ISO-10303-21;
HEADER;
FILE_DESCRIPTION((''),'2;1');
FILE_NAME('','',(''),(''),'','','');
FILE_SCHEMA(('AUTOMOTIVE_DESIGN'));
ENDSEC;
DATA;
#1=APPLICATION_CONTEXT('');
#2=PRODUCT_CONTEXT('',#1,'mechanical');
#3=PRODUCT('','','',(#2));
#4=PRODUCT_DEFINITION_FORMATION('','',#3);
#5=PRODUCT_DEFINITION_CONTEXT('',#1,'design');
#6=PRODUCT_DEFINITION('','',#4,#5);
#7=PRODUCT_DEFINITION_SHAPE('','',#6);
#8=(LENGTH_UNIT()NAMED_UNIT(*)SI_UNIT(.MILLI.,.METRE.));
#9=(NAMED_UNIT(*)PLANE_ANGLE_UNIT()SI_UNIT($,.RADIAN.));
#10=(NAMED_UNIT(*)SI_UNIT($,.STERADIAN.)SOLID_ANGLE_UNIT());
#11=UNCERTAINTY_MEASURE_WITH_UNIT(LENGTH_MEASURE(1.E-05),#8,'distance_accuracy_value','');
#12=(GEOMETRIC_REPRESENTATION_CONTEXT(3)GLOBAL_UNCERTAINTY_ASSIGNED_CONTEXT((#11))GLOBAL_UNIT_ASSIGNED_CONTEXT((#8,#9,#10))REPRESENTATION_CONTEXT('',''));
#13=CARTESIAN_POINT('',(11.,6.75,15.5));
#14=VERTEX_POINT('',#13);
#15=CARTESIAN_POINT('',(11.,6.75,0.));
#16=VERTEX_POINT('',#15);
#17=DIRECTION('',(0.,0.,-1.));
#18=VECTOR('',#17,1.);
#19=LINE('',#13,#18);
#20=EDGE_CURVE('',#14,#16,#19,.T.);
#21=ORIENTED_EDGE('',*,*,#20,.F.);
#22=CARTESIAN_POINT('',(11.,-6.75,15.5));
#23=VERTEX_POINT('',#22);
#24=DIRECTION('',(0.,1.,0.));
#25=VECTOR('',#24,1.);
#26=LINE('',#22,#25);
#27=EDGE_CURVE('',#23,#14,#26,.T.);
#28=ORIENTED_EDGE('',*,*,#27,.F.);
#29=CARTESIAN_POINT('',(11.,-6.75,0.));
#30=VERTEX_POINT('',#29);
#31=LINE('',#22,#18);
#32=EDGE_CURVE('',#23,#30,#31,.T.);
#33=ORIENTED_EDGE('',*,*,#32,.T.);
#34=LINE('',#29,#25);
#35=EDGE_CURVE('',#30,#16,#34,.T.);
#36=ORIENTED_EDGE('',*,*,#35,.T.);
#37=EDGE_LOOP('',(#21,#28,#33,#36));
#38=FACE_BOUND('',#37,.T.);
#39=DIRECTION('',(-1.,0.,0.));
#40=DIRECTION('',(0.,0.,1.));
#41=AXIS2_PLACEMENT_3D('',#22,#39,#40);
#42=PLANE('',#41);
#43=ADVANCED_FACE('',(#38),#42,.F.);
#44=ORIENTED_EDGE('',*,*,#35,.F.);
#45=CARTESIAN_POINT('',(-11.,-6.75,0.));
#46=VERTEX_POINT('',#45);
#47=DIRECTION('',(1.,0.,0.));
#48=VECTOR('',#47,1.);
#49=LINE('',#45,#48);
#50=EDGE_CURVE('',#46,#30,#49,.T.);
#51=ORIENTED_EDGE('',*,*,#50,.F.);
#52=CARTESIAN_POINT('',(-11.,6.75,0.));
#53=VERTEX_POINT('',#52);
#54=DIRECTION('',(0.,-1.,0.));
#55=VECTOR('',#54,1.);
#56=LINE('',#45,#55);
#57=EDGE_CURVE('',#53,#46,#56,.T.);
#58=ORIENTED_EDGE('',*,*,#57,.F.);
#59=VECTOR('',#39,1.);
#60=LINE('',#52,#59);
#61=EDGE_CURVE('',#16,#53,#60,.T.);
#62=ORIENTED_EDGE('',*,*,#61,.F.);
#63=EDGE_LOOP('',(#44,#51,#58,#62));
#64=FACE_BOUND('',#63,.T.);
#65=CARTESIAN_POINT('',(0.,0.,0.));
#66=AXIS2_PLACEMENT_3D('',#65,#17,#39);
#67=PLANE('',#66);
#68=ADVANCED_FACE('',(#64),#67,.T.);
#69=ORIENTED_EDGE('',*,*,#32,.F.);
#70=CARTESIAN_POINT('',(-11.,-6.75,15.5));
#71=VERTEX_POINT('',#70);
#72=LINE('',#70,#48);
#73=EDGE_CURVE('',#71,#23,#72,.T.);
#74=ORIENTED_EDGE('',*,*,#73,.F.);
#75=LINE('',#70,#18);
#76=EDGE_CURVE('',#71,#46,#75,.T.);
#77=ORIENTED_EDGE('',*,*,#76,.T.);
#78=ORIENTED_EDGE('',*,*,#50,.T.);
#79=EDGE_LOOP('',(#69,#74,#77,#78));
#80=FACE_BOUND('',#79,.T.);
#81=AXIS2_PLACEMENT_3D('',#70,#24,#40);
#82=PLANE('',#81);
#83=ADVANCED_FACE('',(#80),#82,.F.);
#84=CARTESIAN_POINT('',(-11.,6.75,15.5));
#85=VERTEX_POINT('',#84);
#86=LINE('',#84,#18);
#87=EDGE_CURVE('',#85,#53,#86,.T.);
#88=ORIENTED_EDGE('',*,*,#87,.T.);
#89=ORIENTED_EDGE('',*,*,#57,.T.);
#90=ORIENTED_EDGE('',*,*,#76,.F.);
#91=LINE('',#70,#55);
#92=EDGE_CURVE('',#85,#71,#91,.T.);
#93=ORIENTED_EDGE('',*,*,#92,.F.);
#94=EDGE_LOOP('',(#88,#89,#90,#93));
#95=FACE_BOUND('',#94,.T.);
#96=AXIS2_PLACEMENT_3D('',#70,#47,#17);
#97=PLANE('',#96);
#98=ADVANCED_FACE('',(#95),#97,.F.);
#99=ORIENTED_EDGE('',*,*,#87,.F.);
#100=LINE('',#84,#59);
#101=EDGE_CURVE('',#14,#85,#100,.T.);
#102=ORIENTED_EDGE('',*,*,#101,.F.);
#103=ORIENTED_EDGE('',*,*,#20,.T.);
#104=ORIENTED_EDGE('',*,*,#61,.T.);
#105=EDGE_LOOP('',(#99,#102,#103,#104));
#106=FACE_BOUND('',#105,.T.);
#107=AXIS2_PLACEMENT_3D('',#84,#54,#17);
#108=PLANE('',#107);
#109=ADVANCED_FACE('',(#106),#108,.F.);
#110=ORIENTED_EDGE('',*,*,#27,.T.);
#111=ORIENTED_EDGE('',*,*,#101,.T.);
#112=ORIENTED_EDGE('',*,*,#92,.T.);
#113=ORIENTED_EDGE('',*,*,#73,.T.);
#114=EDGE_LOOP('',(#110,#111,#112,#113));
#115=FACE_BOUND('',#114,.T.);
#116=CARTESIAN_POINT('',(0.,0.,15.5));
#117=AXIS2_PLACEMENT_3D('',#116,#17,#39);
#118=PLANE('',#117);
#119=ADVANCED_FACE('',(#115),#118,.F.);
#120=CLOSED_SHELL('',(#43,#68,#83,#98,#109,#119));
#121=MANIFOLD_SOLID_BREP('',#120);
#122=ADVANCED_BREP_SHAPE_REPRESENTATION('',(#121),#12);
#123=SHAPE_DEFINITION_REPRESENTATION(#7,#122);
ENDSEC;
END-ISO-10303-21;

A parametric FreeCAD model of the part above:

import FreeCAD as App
import Part
import Sketcher

V = App.Vector

doc = App.newDocument("Part")
body = doc.addObject("PartDesign::Body", "Body")

# Sketch on XY plane
sketch1 = body.newObject("Sketcher::SketchObject", "Sketch")
sketch1.AttachmentSupport = (doc.getObject("XY_Plane"), [""])
sketch1.MapMode = "FlatFace"
sketch1.addGeometry(Part.LineSegment(V(-11, 7, 0), V(-11, -7, 0)), False)
sketch1.addGeometry(Part.LineSegment(V(-11, -7, 0), V(11, -7, 0)), False)
sketch1.addGeometry(Part.LineSegment(V(11, -7, 0), V(11, 7, 0)), False)
sketch1.addGeometry(Part.LineSegment(V(11, 7, 0), V(-11, 7, 0)), False)
sketch1.addConstraint(Sketcher.Constraint("Coincident", 0, 2, 1, 1))
sketch1.addConstraint(Sketcher.Constraint("Coincident", 1, 2, 2, 1))
sketch1.addConstraint(Sketcher.Constraint("Coincident", 2, 2, 3, 1))
sketch1.addConstraint(Sketcher.Constraint("Coincident", 3, 2, 0, 1))
sketch1.addConstraint(Sketcher.Constraint("Vertical", 0))
sketch1.addConstraint(Sketcher.Constraint("Horizontal", 1))
sketch1.addConstraint(Sketcher.Constraint("Vertical", 2))
sketch1.addConstraint(Sketcher.Constraint("Horizontal", 3))
sketch1.addConstraint(Sketcher.Constraint("Symmetric", 0, 2, 2, 2, -1, 1))
sketch1.addConstraint(Sketcher.Constraint("DistanceX", 1, 1, 1, 2, 22.0))
sketch1.addConstraint(Sketcher.Constraint("DistanceY", 0, 2, 0, 1, 13.5))
pad1 = body.newObject("PartDesign::Pad", "Pad")
pad1.Profile = sketch1
pad1.Length = 15.5

doc.recompute()
